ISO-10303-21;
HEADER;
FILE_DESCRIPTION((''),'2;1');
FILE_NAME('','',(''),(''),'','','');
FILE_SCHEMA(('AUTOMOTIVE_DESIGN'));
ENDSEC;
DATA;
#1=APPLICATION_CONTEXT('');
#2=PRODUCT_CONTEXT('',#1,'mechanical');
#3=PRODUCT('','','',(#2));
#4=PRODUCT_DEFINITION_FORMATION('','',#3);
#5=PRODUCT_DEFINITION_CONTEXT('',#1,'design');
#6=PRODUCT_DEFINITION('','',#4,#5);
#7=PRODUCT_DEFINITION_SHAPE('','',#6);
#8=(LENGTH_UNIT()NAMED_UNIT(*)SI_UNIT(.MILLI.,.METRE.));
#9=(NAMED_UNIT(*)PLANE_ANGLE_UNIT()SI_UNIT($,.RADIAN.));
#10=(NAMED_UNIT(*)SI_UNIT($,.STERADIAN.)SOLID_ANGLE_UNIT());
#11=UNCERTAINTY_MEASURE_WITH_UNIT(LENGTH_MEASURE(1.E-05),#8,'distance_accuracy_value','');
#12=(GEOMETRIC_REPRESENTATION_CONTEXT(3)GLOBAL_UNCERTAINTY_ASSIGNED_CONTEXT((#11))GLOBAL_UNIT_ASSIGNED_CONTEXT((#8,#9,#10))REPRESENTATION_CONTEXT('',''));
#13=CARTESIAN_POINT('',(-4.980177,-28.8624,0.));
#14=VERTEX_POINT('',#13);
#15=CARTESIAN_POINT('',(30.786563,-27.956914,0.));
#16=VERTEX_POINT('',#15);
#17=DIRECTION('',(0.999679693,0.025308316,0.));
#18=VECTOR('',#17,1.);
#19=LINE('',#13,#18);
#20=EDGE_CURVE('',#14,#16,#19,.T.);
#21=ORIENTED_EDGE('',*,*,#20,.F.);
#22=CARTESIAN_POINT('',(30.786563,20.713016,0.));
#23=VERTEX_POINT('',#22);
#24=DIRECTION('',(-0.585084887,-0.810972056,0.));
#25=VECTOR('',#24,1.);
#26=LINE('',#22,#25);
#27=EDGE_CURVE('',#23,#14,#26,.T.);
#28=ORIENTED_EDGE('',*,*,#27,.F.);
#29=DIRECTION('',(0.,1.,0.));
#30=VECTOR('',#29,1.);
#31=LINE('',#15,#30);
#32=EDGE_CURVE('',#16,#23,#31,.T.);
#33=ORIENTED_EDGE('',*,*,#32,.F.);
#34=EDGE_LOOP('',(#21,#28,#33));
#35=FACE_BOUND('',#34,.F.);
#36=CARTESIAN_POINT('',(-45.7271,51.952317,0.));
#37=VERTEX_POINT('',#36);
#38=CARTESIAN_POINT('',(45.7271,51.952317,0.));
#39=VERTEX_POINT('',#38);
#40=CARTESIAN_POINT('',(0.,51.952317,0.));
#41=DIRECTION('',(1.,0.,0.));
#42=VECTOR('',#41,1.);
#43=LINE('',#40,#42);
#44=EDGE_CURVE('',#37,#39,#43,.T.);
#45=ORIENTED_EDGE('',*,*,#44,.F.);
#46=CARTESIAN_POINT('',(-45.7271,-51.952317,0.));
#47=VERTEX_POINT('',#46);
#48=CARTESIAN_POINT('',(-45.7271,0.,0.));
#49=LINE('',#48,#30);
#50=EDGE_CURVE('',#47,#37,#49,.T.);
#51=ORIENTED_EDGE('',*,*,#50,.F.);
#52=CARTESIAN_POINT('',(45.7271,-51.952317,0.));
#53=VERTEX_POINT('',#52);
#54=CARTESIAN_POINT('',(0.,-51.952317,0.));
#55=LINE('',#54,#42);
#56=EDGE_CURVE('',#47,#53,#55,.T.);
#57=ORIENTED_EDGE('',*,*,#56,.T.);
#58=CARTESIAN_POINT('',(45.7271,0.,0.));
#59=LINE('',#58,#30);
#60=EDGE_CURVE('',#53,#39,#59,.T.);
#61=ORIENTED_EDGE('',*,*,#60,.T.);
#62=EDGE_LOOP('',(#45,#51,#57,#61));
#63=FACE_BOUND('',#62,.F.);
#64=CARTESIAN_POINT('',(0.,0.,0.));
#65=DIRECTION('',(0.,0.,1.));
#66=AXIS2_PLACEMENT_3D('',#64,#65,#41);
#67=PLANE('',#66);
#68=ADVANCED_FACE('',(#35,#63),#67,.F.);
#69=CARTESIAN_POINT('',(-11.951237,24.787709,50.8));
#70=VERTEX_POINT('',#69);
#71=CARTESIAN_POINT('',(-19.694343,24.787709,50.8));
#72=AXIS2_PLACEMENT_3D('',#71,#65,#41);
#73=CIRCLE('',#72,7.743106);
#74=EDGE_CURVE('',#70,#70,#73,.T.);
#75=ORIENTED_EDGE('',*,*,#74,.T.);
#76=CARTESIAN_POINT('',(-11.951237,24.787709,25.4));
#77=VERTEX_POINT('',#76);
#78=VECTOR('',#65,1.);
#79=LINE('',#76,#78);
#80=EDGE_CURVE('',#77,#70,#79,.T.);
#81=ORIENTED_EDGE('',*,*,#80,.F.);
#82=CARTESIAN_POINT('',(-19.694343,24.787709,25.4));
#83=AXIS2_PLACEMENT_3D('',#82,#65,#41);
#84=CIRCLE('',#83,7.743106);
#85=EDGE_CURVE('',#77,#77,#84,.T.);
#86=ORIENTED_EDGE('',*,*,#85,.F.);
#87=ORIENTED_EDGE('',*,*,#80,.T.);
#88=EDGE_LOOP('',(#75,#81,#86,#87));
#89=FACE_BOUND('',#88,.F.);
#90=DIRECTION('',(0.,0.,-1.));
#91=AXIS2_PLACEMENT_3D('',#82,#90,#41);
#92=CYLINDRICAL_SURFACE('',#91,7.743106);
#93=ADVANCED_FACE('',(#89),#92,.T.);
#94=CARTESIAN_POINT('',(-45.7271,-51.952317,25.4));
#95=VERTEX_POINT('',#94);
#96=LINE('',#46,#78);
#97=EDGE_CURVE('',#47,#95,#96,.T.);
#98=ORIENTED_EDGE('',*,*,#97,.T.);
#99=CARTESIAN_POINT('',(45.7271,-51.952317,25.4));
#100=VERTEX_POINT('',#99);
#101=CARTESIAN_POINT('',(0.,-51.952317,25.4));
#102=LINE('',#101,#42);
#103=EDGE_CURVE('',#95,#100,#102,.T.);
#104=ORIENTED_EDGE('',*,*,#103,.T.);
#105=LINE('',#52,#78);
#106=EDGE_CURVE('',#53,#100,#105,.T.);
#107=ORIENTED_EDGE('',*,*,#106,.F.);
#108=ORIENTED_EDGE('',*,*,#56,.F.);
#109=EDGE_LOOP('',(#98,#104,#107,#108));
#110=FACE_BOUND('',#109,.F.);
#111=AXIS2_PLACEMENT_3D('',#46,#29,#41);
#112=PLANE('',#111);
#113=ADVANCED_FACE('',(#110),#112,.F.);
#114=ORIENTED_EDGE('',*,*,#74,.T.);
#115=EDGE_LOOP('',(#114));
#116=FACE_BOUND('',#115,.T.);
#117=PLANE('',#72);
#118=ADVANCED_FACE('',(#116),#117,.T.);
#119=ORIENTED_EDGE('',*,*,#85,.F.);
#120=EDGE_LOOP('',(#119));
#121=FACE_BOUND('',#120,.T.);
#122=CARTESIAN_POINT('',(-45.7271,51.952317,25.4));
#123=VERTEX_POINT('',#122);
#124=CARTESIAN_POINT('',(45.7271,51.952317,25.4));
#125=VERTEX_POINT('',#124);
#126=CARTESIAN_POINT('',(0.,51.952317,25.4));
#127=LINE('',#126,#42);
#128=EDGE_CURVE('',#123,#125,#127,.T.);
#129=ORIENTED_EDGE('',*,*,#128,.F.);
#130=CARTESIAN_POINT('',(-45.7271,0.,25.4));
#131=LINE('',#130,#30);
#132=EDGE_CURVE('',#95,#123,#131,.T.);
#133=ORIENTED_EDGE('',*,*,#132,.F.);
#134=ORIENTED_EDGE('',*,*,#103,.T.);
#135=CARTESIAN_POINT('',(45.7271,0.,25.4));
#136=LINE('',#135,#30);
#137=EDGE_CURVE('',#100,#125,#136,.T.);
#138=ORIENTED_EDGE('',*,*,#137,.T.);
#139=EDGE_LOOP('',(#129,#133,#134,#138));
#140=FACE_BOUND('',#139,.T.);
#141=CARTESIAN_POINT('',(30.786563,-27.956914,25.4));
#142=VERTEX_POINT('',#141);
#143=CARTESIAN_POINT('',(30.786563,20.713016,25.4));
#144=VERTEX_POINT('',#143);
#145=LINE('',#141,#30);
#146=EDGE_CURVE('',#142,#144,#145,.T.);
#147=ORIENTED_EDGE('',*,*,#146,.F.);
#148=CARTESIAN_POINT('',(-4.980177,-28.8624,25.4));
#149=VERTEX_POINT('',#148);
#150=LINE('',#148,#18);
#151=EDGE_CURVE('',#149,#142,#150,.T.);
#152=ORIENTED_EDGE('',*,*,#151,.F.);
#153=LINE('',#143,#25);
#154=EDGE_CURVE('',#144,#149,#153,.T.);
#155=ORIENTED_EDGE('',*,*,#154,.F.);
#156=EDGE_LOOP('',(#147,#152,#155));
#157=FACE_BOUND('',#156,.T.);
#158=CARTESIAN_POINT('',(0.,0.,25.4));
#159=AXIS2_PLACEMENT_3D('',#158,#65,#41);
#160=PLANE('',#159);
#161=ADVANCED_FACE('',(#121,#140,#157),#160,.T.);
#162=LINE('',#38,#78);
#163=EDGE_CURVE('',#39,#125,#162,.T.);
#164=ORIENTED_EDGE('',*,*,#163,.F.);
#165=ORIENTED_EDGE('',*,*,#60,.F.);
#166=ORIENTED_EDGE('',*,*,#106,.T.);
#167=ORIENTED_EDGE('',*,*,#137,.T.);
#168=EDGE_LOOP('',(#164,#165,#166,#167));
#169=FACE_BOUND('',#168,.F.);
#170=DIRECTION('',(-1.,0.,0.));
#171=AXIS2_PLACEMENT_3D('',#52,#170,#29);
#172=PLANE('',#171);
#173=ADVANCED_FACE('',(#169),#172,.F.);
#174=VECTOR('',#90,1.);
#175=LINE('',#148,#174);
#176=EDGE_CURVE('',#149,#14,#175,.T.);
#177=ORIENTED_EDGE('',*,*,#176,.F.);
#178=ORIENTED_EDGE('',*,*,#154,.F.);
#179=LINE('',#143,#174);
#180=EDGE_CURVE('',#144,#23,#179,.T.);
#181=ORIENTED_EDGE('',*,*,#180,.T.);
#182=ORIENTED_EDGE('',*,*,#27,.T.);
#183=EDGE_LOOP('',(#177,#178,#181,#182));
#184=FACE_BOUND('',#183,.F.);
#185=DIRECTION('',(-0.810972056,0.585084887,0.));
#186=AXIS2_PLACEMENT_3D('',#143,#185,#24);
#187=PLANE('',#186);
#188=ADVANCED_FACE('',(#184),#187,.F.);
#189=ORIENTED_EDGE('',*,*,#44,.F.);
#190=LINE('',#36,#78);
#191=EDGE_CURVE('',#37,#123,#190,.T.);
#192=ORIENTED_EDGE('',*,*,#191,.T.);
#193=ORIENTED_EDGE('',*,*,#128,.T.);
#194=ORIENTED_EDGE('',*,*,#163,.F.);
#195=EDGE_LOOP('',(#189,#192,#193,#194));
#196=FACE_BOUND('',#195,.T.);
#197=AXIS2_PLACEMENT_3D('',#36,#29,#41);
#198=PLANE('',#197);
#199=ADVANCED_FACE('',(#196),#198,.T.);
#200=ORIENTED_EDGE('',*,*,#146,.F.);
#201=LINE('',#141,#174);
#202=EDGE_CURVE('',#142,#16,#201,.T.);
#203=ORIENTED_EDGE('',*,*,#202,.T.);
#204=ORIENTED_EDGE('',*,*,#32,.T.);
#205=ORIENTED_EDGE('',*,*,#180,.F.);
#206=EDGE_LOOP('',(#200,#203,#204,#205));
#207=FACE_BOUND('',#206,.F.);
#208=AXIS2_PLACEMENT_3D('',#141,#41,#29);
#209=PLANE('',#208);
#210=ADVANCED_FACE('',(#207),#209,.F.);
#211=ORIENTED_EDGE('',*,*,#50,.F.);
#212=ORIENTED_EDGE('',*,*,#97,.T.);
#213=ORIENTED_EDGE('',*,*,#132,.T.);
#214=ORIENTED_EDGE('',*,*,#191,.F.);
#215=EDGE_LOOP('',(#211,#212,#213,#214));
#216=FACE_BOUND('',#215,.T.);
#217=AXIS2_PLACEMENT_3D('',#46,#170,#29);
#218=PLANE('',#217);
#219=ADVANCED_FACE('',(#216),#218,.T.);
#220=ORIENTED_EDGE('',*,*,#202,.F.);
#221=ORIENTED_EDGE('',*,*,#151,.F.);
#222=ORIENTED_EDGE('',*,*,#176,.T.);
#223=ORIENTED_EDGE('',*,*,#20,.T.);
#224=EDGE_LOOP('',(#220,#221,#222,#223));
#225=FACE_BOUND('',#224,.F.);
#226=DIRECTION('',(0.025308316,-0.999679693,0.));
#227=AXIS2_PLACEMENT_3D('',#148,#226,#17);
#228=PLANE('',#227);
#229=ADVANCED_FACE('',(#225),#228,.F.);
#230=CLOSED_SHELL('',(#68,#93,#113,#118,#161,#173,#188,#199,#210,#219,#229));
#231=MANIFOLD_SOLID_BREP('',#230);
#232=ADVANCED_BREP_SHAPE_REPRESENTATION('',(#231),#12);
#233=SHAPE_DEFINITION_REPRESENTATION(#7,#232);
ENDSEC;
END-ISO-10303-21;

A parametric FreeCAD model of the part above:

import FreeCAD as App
import Part
import Sketcher
from FreeCAD import Vector
Q = App.Units.Quantity


def add_polygon(sketch, points):
    """Adds a closed chain of lines whose ends are joined by coincident constraints."""
    first, n = sketch.GeometryCount, len(points)
    for a, b in zip(points, points[1:] + points[:1]):
        sketch.addGeometry(Part.LineSegment(App.Vector(*a, 0), App.Vector(*b, 0)), False)
    for i in range(n):
        sketch.addConstraint(Sketcher.Constraint("Coincident", first + i, 2, first + (i + 1) % n, 1))

doc = App.newDocument("Part")
body = doc.addObject("PartDesign::Body", "Body")

sketch1 = doc.addObject("Sketcher::SketchObject", "Sketch")
body.addObject(sketch1)
sketch1.AttachmentSupport = (doc.XY_Plane, [""])
sketch1.MapMode = "FlatFace"
add_polygon(sketch1, [(-46, 52), (-46, -52), (46, -52), (46, 52)])
sketch1.addConstraint([
    Sketcher.Constraint("Vertical", 0),
    Sketcher.Constraint("Horizontal", 1),
    Sketcher.Constraint("Vertical", 2),
    Sketcher.Constraint("Horizontal", 3),
    Sketcher.Constraint("Symmetric", 0, 2, 2, 2, -1, 1),
    Sketcher.Constraint("DistanceX", 1, 1, 1, 2, 91.4542),
    Sketcher.Constraint("DistanceY", 0, 2, 0, 1, 103.904634),
])
pad1 = doc.addObject("PartDesign::Pad", "Pad")
body.addObject(pad1)
pad1.Profile = sketch1
pad1.Length = Q("1 in")

sketch2 = doc.addObject("Sketcher::SketchObject", "Sketch001")
body.addObject(sketch2)
sketch2.AttachmentSupport = (doc.XY_Plane, [""])
sketch2.MapMode = "FlatFace"
sketch2.AttachmentOffset = App.Placement(Vector(0, 0, 1 * 25.4), App.Rotation())
sketch2.addGeometry(Part.Circle(Vector(-20, 25, 0), Vector(0, 0, 1), 8), False)
sketch2.addConstraint([
    Sketcher.Constraint("Diameter", 0, 15.486212),
    Sketcher.Constraint("DistanceY", -1, 1, 0, 3, 24.787709),
    Sketcher.Constraint("DistanceX", 0, 3, -1, 1, 19.694343),
])
pad2 = doc.addObject("PartDesign::Pad", "Pad001")
body.addObject(pad2)
pad2.Profile = sketch2
pad2.Length = Q("1 in")

sketch3 = doc.addObject("Sketcher::SketchObject", "Sketch002")
body.addObject(sketch3)
sketch3.AttachmentSupport = (doc.XY_Plane, [""])
sketch3.MapMode = "FlatFace"
sketch3.AttachmentOffset = App.Placement(Vector(0, 0, 1 * 25.4), App.Rotation())
add_polygon(sketch3, [(31, 21), (-5, -29), (31, -28)])
sketch3.addConstraint([
    Sketcher.Constraint("Vertical", 2),
    Sketcher.Constraint("Distance", 1, 35.7782),
    Sketcher.Constraint("DistanceY", 2, 1, 2, 2, 48.66993),
    Sketcher.Constraint("DistanceY", 0, 2, -1, 1, 28.8624),
    Sketcher.Constraint("DistanceX", 0, 2, 1, 2, 35.76674),
    Sketcher.Constraint("DistanceX", 0, 2, -1, 1, 4.980177),
])
pocket1 = doc.addObject("PartDesign::Pocket", "Pocket")
body.addObject(pocket1)
pocket1.Profile = sketch3
pocket1.Length = Q("1 in")

doc.recompute()
